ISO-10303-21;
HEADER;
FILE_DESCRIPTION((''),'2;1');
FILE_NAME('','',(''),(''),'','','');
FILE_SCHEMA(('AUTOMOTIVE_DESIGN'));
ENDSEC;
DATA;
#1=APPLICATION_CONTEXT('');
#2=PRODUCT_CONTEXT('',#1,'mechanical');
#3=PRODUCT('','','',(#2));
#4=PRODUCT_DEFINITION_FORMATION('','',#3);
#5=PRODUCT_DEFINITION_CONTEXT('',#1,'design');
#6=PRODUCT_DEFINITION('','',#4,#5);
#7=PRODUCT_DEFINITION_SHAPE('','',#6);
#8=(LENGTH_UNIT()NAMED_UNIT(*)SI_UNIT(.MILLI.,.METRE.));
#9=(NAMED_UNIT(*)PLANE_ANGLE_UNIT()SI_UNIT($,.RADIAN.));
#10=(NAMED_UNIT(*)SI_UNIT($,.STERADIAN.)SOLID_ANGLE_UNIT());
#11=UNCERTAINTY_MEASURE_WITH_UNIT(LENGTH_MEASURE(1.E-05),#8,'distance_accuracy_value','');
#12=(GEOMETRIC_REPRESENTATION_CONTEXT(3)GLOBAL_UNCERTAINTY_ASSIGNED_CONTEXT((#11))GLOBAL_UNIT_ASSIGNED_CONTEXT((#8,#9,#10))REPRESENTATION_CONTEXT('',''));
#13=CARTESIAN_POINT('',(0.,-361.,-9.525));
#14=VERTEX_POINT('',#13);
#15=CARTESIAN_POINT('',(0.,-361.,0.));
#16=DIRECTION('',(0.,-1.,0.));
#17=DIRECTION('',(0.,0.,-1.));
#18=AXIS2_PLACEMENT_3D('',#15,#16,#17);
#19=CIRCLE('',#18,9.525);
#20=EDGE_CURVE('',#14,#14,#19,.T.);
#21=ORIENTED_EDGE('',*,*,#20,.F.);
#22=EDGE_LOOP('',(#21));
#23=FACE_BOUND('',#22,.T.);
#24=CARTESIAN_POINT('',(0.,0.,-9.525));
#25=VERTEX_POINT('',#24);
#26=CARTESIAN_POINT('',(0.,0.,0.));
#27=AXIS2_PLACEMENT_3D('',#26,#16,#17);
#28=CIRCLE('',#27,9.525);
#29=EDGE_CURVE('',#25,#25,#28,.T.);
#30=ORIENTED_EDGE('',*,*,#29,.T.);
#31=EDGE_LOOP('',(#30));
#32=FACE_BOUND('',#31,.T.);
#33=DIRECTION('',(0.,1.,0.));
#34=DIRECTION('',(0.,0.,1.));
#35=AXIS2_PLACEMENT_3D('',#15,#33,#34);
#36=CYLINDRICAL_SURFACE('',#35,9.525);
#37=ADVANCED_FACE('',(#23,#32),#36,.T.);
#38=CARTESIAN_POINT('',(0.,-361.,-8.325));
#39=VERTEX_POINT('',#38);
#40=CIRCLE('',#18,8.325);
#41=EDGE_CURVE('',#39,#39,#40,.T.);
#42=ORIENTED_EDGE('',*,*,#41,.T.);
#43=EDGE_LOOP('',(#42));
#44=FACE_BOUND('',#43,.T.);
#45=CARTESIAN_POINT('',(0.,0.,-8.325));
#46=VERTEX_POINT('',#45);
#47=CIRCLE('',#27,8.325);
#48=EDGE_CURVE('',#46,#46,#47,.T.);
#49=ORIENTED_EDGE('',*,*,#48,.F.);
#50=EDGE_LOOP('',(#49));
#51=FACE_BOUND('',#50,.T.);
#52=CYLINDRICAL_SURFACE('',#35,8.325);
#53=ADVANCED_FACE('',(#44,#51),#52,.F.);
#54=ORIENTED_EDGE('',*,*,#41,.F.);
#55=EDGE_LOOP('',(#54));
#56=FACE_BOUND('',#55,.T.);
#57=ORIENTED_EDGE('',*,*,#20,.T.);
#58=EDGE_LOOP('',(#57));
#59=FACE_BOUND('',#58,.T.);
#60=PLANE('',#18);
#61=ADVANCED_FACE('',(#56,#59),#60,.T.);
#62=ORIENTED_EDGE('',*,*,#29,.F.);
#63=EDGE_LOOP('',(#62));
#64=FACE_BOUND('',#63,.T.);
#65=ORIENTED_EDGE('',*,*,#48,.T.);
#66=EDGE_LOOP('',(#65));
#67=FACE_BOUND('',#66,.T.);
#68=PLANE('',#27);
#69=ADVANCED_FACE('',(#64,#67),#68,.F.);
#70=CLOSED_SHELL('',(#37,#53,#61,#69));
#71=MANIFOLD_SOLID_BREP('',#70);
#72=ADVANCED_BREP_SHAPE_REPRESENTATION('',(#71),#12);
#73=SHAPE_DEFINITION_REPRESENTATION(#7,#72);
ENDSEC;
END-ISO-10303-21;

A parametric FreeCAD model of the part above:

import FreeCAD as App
import Part
import Sketcher
Q = App.Units.Quantity

doc = App.newDocument("Part")
body = doc.addObject("PartDesign::Body", "Body")

# Sketch on XZ plane
sketch1 = body.newObject("Sketcher::SketchObject", "Sketch")
sketch1.AttachmentSupport = (doc.getObject("XZ_Plane"), [""])
sketch1.MapMode = "FlatFace"
sketch1.addGeometry([
    Part.Circle(App.Vector(0, 0, 0), App.Vector(0, 0, 1), 10),
    Part.Circle(App.Vector(0, 0, 0), App.Vector(0, 0, 1), 8),
], False)
sketch1.addConstraint([
    Sketcher.Constraint("Coincident", 0, 3, -1, 1),
    Sketcher.Constraint("Coincident", 1, 3, -1, 1),
    Sketcher.Constraint("Diameter", 0, Q("19.05 mm")),
    Sketcher.Constraint("Diameter", 1, Q("16.65 mm")),
])
pad1 = body.newObject("PartDesign::Pad", "Pad")
pad1.Profile = sketch1
pad1.Length = 361

doc.recompute()
